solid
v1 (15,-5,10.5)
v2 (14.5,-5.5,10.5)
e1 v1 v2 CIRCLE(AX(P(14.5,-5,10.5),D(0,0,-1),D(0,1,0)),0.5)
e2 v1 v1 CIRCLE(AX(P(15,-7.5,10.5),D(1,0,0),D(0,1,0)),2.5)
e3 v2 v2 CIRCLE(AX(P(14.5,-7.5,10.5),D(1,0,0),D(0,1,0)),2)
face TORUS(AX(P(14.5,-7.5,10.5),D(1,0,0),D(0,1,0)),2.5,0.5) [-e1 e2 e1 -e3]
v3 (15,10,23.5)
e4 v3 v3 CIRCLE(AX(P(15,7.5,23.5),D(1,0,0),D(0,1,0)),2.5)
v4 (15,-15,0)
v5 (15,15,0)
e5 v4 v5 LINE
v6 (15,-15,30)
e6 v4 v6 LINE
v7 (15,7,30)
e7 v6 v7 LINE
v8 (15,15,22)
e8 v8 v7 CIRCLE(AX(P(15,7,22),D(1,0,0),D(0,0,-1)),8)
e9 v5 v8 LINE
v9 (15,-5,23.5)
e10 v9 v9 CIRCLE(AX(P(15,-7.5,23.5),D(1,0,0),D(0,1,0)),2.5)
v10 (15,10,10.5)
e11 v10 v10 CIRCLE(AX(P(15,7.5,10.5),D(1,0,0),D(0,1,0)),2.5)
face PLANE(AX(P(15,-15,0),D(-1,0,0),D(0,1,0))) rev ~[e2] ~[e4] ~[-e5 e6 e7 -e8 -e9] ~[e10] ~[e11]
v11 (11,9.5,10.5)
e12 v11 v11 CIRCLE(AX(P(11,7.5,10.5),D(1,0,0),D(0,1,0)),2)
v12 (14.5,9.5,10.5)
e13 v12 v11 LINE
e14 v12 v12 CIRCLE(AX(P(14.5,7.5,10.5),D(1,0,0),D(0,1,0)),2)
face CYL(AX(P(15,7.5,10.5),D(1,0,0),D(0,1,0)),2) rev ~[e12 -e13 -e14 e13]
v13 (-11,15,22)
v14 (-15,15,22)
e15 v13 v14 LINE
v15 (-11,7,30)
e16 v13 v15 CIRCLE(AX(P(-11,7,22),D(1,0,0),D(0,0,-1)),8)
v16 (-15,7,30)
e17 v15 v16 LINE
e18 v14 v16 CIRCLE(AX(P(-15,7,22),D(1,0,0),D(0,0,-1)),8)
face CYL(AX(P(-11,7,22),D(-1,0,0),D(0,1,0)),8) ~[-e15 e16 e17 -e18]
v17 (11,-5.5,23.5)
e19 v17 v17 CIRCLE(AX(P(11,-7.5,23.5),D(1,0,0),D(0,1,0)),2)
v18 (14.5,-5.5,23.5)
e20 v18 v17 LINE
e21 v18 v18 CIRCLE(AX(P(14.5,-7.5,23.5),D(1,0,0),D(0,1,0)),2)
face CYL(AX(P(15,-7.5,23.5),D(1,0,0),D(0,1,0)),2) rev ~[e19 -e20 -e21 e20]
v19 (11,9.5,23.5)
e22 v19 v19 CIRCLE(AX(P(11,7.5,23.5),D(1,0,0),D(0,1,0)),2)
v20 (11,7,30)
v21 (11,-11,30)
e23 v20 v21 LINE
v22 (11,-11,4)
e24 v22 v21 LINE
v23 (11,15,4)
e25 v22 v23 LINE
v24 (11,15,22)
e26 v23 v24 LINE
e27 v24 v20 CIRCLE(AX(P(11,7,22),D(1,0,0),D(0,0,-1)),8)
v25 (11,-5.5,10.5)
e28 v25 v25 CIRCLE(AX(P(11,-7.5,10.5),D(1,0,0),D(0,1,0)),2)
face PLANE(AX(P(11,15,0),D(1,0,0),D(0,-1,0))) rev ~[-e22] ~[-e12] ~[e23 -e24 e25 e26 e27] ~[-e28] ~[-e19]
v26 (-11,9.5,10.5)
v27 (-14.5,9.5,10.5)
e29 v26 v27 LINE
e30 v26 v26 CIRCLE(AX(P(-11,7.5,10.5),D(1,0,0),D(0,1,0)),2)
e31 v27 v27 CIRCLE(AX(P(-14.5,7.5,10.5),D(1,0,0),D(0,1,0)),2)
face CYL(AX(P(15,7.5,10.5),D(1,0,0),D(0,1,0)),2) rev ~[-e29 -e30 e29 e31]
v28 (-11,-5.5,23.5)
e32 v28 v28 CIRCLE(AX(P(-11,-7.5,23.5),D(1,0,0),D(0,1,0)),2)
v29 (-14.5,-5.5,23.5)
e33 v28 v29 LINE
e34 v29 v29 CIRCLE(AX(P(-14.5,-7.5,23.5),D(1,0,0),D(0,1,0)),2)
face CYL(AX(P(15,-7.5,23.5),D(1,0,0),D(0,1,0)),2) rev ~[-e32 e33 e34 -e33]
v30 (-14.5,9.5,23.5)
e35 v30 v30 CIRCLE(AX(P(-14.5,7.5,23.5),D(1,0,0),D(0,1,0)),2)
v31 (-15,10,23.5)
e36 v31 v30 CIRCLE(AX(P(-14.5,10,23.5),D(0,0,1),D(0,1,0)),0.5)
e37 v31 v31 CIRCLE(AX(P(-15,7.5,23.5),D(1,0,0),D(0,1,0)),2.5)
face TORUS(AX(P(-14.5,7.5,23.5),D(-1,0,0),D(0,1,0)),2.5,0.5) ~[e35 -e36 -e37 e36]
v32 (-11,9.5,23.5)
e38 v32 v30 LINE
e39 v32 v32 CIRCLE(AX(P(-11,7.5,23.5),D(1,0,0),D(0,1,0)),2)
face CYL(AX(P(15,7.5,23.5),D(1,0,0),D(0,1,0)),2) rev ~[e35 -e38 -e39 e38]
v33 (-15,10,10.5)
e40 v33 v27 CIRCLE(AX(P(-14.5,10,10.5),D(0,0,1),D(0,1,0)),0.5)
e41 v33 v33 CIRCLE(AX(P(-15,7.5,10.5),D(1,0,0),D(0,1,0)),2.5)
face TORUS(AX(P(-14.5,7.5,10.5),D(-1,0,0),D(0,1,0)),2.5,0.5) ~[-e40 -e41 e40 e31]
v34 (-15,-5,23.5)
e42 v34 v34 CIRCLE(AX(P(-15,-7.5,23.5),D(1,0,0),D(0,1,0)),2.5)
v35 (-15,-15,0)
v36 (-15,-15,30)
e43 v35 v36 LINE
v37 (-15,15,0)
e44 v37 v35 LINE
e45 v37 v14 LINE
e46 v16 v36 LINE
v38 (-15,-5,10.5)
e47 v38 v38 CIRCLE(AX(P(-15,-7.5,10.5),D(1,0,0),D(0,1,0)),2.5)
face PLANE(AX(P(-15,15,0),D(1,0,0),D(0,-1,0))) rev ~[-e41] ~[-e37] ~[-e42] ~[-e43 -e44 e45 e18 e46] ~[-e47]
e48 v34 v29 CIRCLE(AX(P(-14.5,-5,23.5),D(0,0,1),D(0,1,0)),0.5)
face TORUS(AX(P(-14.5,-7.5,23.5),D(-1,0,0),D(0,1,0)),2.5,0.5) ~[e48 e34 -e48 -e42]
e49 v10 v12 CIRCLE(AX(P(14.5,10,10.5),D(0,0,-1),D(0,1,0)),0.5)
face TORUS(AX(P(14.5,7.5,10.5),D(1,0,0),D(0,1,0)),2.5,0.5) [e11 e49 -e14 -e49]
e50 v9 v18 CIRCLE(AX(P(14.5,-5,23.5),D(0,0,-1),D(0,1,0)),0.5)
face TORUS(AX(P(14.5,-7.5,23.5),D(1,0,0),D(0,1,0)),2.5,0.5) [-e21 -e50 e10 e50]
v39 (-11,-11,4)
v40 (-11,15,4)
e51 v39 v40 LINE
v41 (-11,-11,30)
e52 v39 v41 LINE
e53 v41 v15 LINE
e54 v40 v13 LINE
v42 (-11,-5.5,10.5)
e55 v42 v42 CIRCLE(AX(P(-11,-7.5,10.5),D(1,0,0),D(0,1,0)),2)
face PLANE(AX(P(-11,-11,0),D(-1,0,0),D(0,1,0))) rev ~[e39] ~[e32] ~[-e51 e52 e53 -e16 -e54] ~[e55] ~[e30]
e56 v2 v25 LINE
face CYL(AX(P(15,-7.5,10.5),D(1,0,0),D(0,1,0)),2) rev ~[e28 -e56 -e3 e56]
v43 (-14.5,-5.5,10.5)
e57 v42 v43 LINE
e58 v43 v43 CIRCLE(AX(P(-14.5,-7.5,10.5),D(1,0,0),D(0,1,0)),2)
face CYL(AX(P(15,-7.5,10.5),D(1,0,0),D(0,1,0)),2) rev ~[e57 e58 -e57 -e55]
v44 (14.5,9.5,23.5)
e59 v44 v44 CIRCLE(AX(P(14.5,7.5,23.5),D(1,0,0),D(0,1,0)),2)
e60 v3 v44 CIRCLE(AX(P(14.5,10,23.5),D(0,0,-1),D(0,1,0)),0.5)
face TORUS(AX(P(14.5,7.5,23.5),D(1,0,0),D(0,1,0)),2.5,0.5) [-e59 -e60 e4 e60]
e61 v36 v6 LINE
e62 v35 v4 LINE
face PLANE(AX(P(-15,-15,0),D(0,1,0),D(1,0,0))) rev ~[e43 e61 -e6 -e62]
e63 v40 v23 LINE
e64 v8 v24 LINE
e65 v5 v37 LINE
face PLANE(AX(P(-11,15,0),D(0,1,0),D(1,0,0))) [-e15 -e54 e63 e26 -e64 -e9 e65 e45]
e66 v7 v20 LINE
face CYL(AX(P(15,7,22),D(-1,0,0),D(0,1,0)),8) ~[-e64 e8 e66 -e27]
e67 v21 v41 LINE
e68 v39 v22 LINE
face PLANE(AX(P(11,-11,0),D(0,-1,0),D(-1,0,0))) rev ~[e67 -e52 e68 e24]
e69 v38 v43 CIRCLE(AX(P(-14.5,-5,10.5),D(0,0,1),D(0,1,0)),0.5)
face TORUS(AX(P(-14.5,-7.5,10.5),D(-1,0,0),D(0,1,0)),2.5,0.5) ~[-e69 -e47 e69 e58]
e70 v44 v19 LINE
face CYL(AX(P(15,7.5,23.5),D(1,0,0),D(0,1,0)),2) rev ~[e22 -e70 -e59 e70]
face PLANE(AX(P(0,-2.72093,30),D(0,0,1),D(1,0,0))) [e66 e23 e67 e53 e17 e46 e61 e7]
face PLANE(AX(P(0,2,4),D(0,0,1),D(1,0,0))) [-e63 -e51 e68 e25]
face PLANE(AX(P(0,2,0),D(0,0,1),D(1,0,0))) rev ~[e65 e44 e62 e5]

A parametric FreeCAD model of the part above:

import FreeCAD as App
import Part
import Sketcher
from FreeCAD import Vector


def edges_at(feature, points):
    """Names of the edges that pass closest to the given points."""
    edges = feature.Shape.Edges
    near = lambda p: min(range(len(edges)), key=lambda i: edges[i].distToShape(Part.Vertex(*p))[0])
    return sorted({f"Edge{near(p) + 1}" for p in points})

doc = App.newDocument("Part")
body = doc.addObject("PartDesign::Body", "Body")

# Sketch on XY plane
sketch1 = body.newObject("Sketcher::SketchObject", "Sketch")
sketch1.AttachmentSupport = (doc.getObject("XY_Plane"), [""])
sketch1.MapMode = "FlatFace"
sketch1.addGeometry(Part.LineSegment(Vector(-11, 15, 0), Vector(-15, 15, 0)), False)
sketch1.addGeometry(Part.LineSegment(Vector(-15, 15, 0), Vector(-15, -15, 0)), False)
sketch1.addGeometry(Part.LineSegment(Vector(-15, -15, 0), Vector(15, -15, 0)), False)
sketch1.addGeometry(Part.LineSegment(Vector(15, -15, 0), Vector(15, 15, 0)), False)
sketch1.addGeometry(Part.LineSegment(Vector(15, 15, 0), Vector(11, 15, 0)), False)
sketch1.addGeometry(Part.LineSegment(Vector(11, 15, 0), Vector(11, -11, 0)), False)
sketch1.addGeometry(Part.LineSegment(Vector(11, -11, 0), Vector(-11, -11, 0)), False)
sketch1.addGeometry(Part.LineSegment(Vector(-11, -11, 0), Vector(-11, 15, 0)), False)
sketch1.addConstraint(Sketcher.Constraint("Coincident", 0, 2, 1, 1))
sketch1.addConstraint(Sketcher.Constraint("Coincident", 1, 2, 2, 1))
sketch1.addConstraint(Sketcher.Constraint("Coincident", 2, 2, 3, 1))
sketch1.addConstraint(Sketcher.Constraint("Coincident", 3, 2, 4, 1))
sketch1.addConstraint(Sketcher.Constraint("Coincident", 4, 2, 5, 1))
sketch1.addConstraint(Sketcher.Constraint("Coincident", 5, 2, 6, 1))
sketch1.addConstraint(Sketcher.Constraint("Coincident", 6, 2, 7, 1))
sketch1.addConstraint(Sketcher.Constraint("Coincident", 7, 2, 0, 1))
sketch1.addConstraint(Sketcher.Constraint("Horizontal", 0))
sketch1.addConstraint(Sketcher.Constraint("Vertical", 1))
sketch1.addConstraint(Sketcher.Constraint("Horizontal", 2))
sketch1.addConstraint(Sketcher.Constraint("Vertical", 3))
sketch1.addConstraint(Sketcher.Constraint("Horizontal", 4))
sketch1.addConstraint(Sketcher.Constraint("Vertical", 5))
sketch1.addConstraint(Sketcher.Constraint("Horizontal", 6))
sketch1.addConstraint(Sketcher.Constraint("Vertical", 7))
sketch1.addConstraint(Sketcher.Constraint("Symmetric", 0, 2, 2, 2, -1, 1))
sketch1.addConstraint(Sketcher.Constraint("Symmetric", 4, 2, 7, 2, -2))
sketch1.addConstraint(Sketcher.Constraint("Equal", 2, 1))
sketch1.addConstraint(Sketcher.Constraint("DistanceX", 0, 2, 0, 1, 4.0))
sketch1.addConstraint(Sketcher.Constraint("DistanceX", 2, 1, 2, 2, 30.0))
sketch1.addConstraint(Sketcher.Constraint("DistanceY", 5, 2, 5, 1, 26.0))
pad1 = body.newObject("PartDesign::Pad", "Pad")
pad1.Profile = sketch1
pad1.Length = 30

# Sketch on XY plane
sketch2 = body.newObject("Sketcher::SketchObject", "Sketch001")
sketch2.AttachmentSupport = (doc.getObject("XY_Plane"), [""])
sketch2.MapMode = "FlatFace"
sketch2.addGeometry(Part.LineSegment(Vector(-11, 15, 0), Vector(-11, -11, 0)), False)
sketch2.addGeometry(Part.LineSegment(Vector(-11, -11, 0), Vector(11, -11, 0)), False)
sketch2.addGeometry(Part.LineSegment(Vector(11, -11, 0), Vector(11, 15, 0)), False)
sketch2.addGeometry(Part.LineSegment(Vector(11, 15, 0), Vector(-11, 15, 0)), False)
sketch2.addConstraint(Sketcher.Constraint("Coincident", 0, 2, 1, 1))
sketch2.addConstraint(Sketcher.Constraint("Coincident", 1, 2, 2, 1))
sketch2.addConstraint(Sketcher.Constraint("Coincident", 2, 2, 3, 1))
sketch2.addConstraint(Sketcher.Constraint("Coincident", 3, 2, 0, 1))
sketch2.addConstraint(Sketcher.Constraint("Vertical", 0))
sketch2.addConstraint(Sketcher.Constraint("Horizontal", 1))
sketch2.addConstraint(Sketcher.Constraint("Vertical", 2))
sketch2.addConstraint(Sketcher.Constraint("Horizontal", 3))
sketch2.addConstraint(Sketcher.Constraint("DistanceX", 1, 1, 1, 2, 22.0))
sketch2.addConstraint(Sketcher.Constraint("DistanceY", 0, 2, 0, 1, 26.0))
sketch2.addConstraint(Sketcher.Constraint("DistanceX", 0, 2, -1, 1, 11.0))
sketch2.addConstraint(Sketcher.Constraint("DistanceY", 0, 2, -1, 1, 11.0))
pad2 = body.newObject("PartDesign::Pad", "Pad001")
pad2.Profile = sketch2
pad2.Length = 4
doc.recompute()

fillet = body.newObject("PartDesign::Fillet", "Fillet")
fillet.Base = (pad2, edges_at(pad2, [(-13, 15, 30), (13, 15, 30)]))
fillet.Radius = 8

# Sketch on YZ plane
sketch3 = body.newObject("Sketcher::SketchObject", "Sketch002")
sketch3.AttachmentSupport = (doc.getObject("YZ_Plane"), [""])
sketch3.MapMode = "FlatFace"
sketch3.AttachmentOffset = App.Placement(Vector(0, 0, 15), App.Rotation())
sketch3.addGeometry(Part.Circle(Vector(7.5, 23.5, 0), Vector(0, 0, 1), 2), False)
sketch3.addGeometry(Part.Circle(Vector(-7.5, 23.5, 0), Vector(0, 0, 1), 2), False)
sketch3.addGeometry(Part.Circle(Vector(-7.5, 10.5, 0), Vector(0, 0, 1), 2), False)
sketch3.addGeometry(Part.Circle(Vector(7.5, 10.5, 0), Vector(0, 0, 1), 2), False)
sketch3.addConstraint(Sketcher.Constraint("Equal", 0, 1))
sketch3.addConstraint(Sketcher.Constraint("Equal", 1, 2))
sketch3.addConstraint(Sketcher.Constraint("Equal", 2, 3))
sketch3.addConstraint(Sketcher.Constraint("Symmetric", 0, 3, 1, 3, -2))
sketch3.addConstraint(Sketcher.Constraint("Symmetric", 2, 3, 3, 3, -2))
sketch3.addConstraint(Sketcher.Constraint("Vertical", 1, 3, 2, 3))
sketch3.addConstraint(Sketcher.Constraint("Diameter", 0, 4.0))
sketch3.addConstraint(Sketcher.Constraint("DistanceX", 1, 3, 0, 3, 15.0))
sketch3.addConstraint(Sketcher.Constraint("DistanceY", 2, 3, 1, 3, 13.0))
sketch3.addConstraint(Sketcher.Constraint("DistanceY", -1, 1, 0, 3, 23.5))
pocket1 = body.newObject("PartDesign::Pocket", "Pocket")
pocket1.Profile = sketch3
pocket1.Length = 35
doc.recompute()

fillet2 = body.newObject("PartDesign::Fillet", "Fillet001")
fillet2.Base = (pocket1, edges_at(pocket1, [
    (15, -9.5, 10.5),
    (15, 5.5, 10.5),
    (15, 5.5, 23.5),
    (15, -9.5, 23.5),
    (-15, 5.5, 10.5),
    (-15, 5.5, 23.5),
    (-15, -9.5, 23.5),
    (-15, -9.5, 10.5),
]))
fillet2.Radius = 0.5

doc.recompute()
